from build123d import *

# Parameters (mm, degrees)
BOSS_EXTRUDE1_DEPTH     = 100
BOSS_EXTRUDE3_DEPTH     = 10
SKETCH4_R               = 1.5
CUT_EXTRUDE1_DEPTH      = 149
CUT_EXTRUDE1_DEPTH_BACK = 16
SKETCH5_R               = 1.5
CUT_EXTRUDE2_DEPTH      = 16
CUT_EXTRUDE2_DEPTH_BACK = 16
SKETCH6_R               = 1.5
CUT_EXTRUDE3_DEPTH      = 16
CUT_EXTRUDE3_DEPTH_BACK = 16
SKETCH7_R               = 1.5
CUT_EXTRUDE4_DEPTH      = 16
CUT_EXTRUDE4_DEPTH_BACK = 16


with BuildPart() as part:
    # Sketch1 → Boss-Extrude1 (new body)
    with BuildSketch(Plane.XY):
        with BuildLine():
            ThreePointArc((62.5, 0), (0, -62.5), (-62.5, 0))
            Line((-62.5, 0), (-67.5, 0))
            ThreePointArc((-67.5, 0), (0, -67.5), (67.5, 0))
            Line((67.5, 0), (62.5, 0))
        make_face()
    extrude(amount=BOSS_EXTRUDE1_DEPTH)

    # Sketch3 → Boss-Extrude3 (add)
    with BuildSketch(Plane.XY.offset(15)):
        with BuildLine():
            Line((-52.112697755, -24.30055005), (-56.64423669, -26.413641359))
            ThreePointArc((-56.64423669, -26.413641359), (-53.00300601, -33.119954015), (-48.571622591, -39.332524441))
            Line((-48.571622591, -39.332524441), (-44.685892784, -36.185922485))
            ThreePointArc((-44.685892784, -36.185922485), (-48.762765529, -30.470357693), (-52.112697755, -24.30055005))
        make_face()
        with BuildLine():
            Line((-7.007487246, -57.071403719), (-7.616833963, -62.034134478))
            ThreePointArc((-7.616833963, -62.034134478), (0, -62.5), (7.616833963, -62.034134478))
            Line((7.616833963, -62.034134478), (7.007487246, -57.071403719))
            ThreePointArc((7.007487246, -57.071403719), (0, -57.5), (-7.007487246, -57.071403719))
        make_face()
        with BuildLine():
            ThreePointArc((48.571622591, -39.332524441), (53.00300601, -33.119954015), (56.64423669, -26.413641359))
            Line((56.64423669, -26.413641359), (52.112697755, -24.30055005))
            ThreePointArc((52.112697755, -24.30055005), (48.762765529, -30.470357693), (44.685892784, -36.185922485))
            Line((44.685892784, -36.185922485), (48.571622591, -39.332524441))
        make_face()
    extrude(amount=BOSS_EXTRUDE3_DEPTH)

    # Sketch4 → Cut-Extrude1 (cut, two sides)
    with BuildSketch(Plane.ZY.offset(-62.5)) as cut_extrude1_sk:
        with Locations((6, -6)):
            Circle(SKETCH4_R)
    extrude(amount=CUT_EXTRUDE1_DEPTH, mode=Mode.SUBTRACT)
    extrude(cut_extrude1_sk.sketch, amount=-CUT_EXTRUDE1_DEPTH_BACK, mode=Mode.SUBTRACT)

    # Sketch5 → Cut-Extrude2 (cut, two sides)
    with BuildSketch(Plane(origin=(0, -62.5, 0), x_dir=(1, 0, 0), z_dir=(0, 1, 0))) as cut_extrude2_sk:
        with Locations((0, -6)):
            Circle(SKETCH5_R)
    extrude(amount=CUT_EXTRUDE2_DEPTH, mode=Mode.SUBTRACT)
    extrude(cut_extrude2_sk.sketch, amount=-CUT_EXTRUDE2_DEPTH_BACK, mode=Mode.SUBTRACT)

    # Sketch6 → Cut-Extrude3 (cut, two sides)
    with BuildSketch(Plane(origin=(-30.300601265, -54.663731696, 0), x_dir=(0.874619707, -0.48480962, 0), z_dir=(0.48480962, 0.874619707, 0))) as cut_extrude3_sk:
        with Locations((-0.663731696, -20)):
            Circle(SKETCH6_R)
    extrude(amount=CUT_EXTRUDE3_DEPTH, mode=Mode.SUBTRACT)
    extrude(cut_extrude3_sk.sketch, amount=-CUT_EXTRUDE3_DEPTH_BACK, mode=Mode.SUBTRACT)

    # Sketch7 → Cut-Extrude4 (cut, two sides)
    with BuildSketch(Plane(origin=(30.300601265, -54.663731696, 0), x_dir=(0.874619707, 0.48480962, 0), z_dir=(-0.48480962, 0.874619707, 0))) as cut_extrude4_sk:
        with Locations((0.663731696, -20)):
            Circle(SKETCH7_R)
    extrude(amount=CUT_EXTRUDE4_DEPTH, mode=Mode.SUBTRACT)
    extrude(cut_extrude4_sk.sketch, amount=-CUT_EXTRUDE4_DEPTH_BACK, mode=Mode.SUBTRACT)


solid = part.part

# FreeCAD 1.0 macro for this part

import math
import FreeCAD as App
import Part
import Sketcher
from FreeCAD import Vector
Q = App.Units.Quantity

doc = App.newDocument("Part")
body = doc.addObject("PartDesign::Body", "Body")

sketch1 = doc.addObject("Sketcher::SketchObject", "Sketch")
body.addObject(sketch1)
sketch1.AttachmentSupport = (doc.XY_Plane, [""])
sketch1.MapMode = "FlatFace"
sketch1.addGeometry(Part.ArcOfCircle(Part.Circle(Vector(0, 0, 0), Vector(0, 0, 1), 62.5), math.radians(180), math.radians(360)), False)
sketch1.addGeometry(Part.LineSegment(Vector(-62.5, 0, 0), Vector(-67.5, 0, 0)), False)
sketch1.addGeometry(Part.ArcOfCircle(Part.Circle(Vector(0, 0, 0), Vector(0, 0, 1), 67.5), math.radians(180), math.radians(360)), False)
sketch1.addGeometry(Part.LineSegment(Vector(67.5, 0, 0), Vector(62.5, 0, 0)), False)
sketch1.addConstraint(Sketcher.Constraint("Coincident", 0, 1, 1, 1))
sketch1.addConstraint(Sketcher.Constraint("Coincident", 1, 2, 2, 1))
sketch1.addConstraint(Sketcher.Constraint("Coincident", 2, 2, 3, 1))
sketch1.addConstraint(Sketcher.Constraint("Coincident", 3, 2, 0, 2))
sketch1.addConstraint(Sketcher.Constraint("Horizontal", 1))
sketch1.addConstraint(Sketcher.Constraint("Horizontal", 3))
sketch1.addConstraint(Sketcher.Constraint("Coincident", 0, 3, -1, 1))
sketch1.addConstraint(Sketcher.Constraint("Coincident", 2, 3, -1, 1))
sketch1.addConstraint(Sketcher.Constraint("PointOnObject", 0, 1, -1))
sketch1.addConstraint(Sketcher.Constraint("PointOnObject", 2, 2, -1))
sketch1.addConstraint(Sketcher.Constraint("Radius", 0, Q("62.5 mm")))
sketch1.addConstraint(Sketcher.Constraint("Radius", 2, Q("67.5 mm")))
pad1 = doc.addObject("PartDesign::Pad", "Pad")
body.addObject(pad1)
pad1.Profile = sketch1
pad1.Length = 100

sketch2 = doc.addObject("Sketcher::SketchObject", "Sketch001")
body.addObject(sketch2)
sketch2.AttachmentSupport = (doc.XY_Plane, [""])
sketch2.MapMode = "FlatFace"
sketch2.AttachmentOffset = App.Placement(Vector(0, 0, 15), App.Rotation())
sketch2.addGeometry(Part.LineSegment(Vector(-52.112698, -24.30055, 0), Vector(-56.644237, -26.413641, 0)), False)
sketch2.addGeometry(Part.ArcOfCircle(Part.Circle(Vector(0, 0, 0), Vector(0, 0, 1), 62.5), math.radians(-155), math.radians(-141)), False)
sketch2.addGeometry(Part.LineSegment(Vector(-48.571623, -39.332524, 0), Vector(-44.685893, -36.185922, 0)), False)
sketch2.addGeometry(Part.ArcOfCircle(Part.Circle(Vector(0, 0, 0), Vector(0, 0, 1), 57.5), math.radians(-155), math.radians(-141)), False)
sketch2.addGeometry(Part.LineSegment(Vector(-7.007487, -57.071404, 0), Vector(-7.616834, -62.034134, 0)), False)
sketch2.addGeometry(Part.ArcOfCircle(Part.Circle(Vector(0, 0, 0), Vector(0, 0, 1), 62.5), math.radians(-97), math.radians(-83)), False)
sketch2.addGeometry(Part.LineSegment(Vector(7.616834, -62.034134, 0), Vector(7.007487, -57.071404, 0)), False)
sketch2.addGeometry(Part.ArcOfCircle(Part.Circle(Vector(0, 0, 0), Vector(0, 0, 1), 57.5), math.radians(-97), math.radians(-83)), False)
sketch2.addGeometry(Part.ArcOfCircle(Part.Circle(Vector(0, 0, 0), Vector(0, 0, 1), 62.5), math.radians(-39), math.radians(-25)), False)
sketch2.addGeometry(Part.LineSegment(Vector(56.644237, -26.413641, 0), Vector(52.112698, -24.30055, 0)), False)
sketch2.addGeometry(Part.ArcOfCircle(Part.Circle(Vector(0, 0, 0), Vector(0, 0, 1), 57.5), math.radians(-39), math.radians(-25)), False)
sketch2.addGeometry(Part.LineSegment(Vector(44.685893, -36.185922, 0), Vector(48.571623, -39.332524, 0)), False)
sketch2.addConstraint(Sketcher.Constraint("Coincident", 0, 2, 1, 1))
sketch2.addConstraint(Sketcher.Constraint("Coincident", 1, 2, 2, 1))
sketch2.addConstraint(Sketcher.Constraint("Coincident", 2, 2, 3, 2))
sketch2.addConstraint(Sketcher.Constraint("Coincident", 3, 1, 0, 1))
sketch2.addConstraint(Sketcher.Constraint("Coincident", 4, 2, 5, 1))
sketch2.addConstraint(Sketcher.Constraint("Coincident", 5, 2, 6, 1))
sketch2.addConstraint(Sketcher.Constraint("Coincident", 6, 2, 7, 2))
sketch2.addConstraint(Sketcher.Constraint("Coincident", 7, 1, 4, 1))
sketch2.addConstraint(Sketcher.Constraint("Coincident", 8, 2, 9, 1))
sketch2.addConstraint(Sketcher.Constraint("Coincident", 9, 2, 10, 2))
sketch2.addConstraint(Sketcher.Constraint("Coincident", 10, 1, 11, 1))
sketch2.addConstraint(Sketcher.Constraint("Coincident", 11, 2, 8, 1))
sketch2.addConstraint(Sketcher.Constraint("Coincident", 1, 3, -1, 1))
sketch2.addConstraint(Sketcher.Constraint("Coincident", 3, 3, -1, 1))
sketch2.addConstraint(Sketcher.Constraint("Coincident", 5, 3, -1, 1))
sketch2.addConstraint(Sketcher.Constraint("Coincident", 7, 3, -1, 1))
sketch2.addConstraint(Sketcher.Constraint("Coincident", 8, 3, -1, 1))
sketch2.addConstraint(Sketcher.Constraint("Coincident", 10, 3, -1, 1))
sketch2.addConstraint(Sketcher.Constraint("Equal", 1, 5))
sketch2.addConstraint(Sketcher.Constraint("Equal", 3, 7))
sketch2.addConstraint(Sketcher.Constraint("Equal", 5, 8))
sketch2.addConstraint(Sketcher.Constraint("Equal", 7, 10))
sketch2.addConstraint(Sketcher.Constraint("Horizontal", 4, 2, 5, 2))
sketch2.addConstraint(Sketcher.Constraint("Horizontal", 6, 2, 7, 1))
sketch2.addConstraint(Sketcher.Constraint("Horizontal", 0, 2, 8, 2))
sketch2.addConstraint(Sketcher.Constraint("Horizontal", 3, 1, 9, 2))
sketch2.addConstraint(Sketcher.Constraint("Horizontal", 2, 2, 10, 1))
sketch2.addConstraint(Sketcher.Constraint("Horizontal", 1, 2, 11, 2))
sketch2.addConstraint(Sketcher.Constraint("Radius", 1, Q("62.5 mm")))
sketch2.addConstraint(Sketcher.Constraint("Radius", 3, Q("57.5 mm")))
sketch2.addConstraint(Sketcher.Constraint("Angle", 0, Q("-155 deg")))
sketch2.addConstraint(Sketcher.Constraint("Angle", 2, Q("39 deg")))
sketch2.addConstraint(Sketcher.Constraint("Angle", 4, Q("-97 deg")))
sketch2.addConstraint(Sketcher.Constraint("DistanceY", 0, 2, -1, 1, Q("26.413641 mm")))
sketch2.addConstraint(Sketcher.Constraint("DistanceY", 2, 2, 0, 2, Q("9.772281 mm")))
sketch2.addConstraint(Sketcher.Constraint("DistanceX", 2, 2, 4, 2, Q("37.069059 mm")))
pad2 = doc.addObject("PartDesign::Pad", "Pad001")
body.addObject(pad2)
pad2.Profile = sketch2
pad2.Length = 10

sketch3 = doc.addObject("Sketcher::SketchObject", "Sketch002")
body.addObject(sketch3)
sketch3.AttachmentSupport = (doc.YZ_Plane, [""])
sketch3.MapMode = "FlatFace"
sketch3.AttachmentOffset = App.Placement(Vector(0, 0, 62.5), App.Rotation())
sketch3.addGeometry(Part.Circle(Vector(-6, 6, 0), Vector(0, 0, 1), 1.5), False)
sketch3.addConstraint(Sketcher.Constraint("Diameter", 0, Q("3 mm")))
sketch3.addConstraint(Sketcher.Constraint("DistanceX", 0, 3, -1, 1, Q("6 mm")))
sketch3.addConstraint(Sketcher.Constraint("DistanceY", -1, 1, 0, 3, Q("6 mm")))
pocket1 = doc.addObject("PartDesign::Pocket", "Pocket")
body.addObject(pocket1)
pocket1.Profile = sketch3
pocket1.Type = "ThroughAll"
pocket1.Midplane = True

sketch4 = doc.addObject("Sketcher::SketchObject", "Sketch003")
body.addObject(sketch4)
sketch4.AttachmentSupport = (doc.XZ_Plane, [""])
sketch4.MapMode = "FlatFace"
sketch4.AttachmentOffset = App.Placement(Vector(0, 0, 62.5), App.Rotation())
sketch4.addGeometry(Part.Circle(Vector(0, 6, 0), Vector(0, 0, 1), 1.5), False)
sketch4.addConstraint(Sketcher.Constraint("PointOnObject", 0, 3, -2))
sketch4.addConstraint(Sketcher.Constraint("Diameter", 0, Q("3 mm")))
sketch4.addConstraint(Sketcher.Constraint("DistanceY", -1, 1, 0, 3, Q("6 mm")))
pocket2 = doc.addObject("PartDesign::Pocket", "Pocket001")
body.addObject(pocket2)
pocket2.Profile = sketch4
pocket2.Type = "ThroughAll"
pocket2.Midplane = True

sketch5 = doc.addObject("Sketcher::SketchObject", "Sketch004")
body.addObject(sketch5)
sketch5.Placement = App.Placement(Vector(-30.300601, -54.663732, 0), App.Rotation(Vector(0.874619707, -0.48480962, 0), Vector(0, 0, -1), Vector(0.48480962, 0.874619707, 0), "ZXY"))
sketch5.addGeometry(Part.Circle(Vector(-0.663732, -20, 0), Vector(0, 0, 1), 1.5), False)
sketch5.addConstraint(Sketcher.Constraint("Diameter", 0, Q("3 mm")))
sketch5.addConstraint(Sketcher.Constraint("DistanceY", 0, 3, -1, 1, Q("20 mm")))
sketch5.addConstraint(Sketcher.Constraint("DistanceX", 0, 3, -1, 1, Q("0.663732 mm")))
pocket3 = doc.addObject("PartDesign::Pocket", "Pocket002")
body.addObject(pocket3)
pocket3.Profile = sketch5
pocket3.Type = "ThroughAll"
pocket3.Midplane = True

sketch6 = doc.addObject("Sketcher::SketchObject", "Sketch005")
body.addObject(sketch6)
sketch6.Placement = App.Placement(Vector(30.300601, -54.663732, 0), App.Rotation(Vector(0.874619707, 0.48480962, 0), Vector(0, 0, -1), Vector(-0.48480962, 0.874619707, 0), "ZXY"))
sketch6.addGeometry(Part.Circle(Vector(0.663732, -20, 0), Vector(0, 0, 1), 1.5), False)
sketch6.addConstraint(Sketcher.Constraint("Diameter", 0, Q("3 mm")))
sketch6.addConstraint(Sketcher.Constraint("DistanceY", 0, 3, -1, 1, Q("20 mm")))
sketch6.addConstraint(Sketcher.Constraint("DistanceX", -1, 1, 0, 3, Q("0.663732 mm")))
pocket4 = doc.addObject("PartDesign::Pocket", "Pocket003")
body.addObject(pocket4)
pocket4.Profile = sketch6
pocket4.Type = "ThroughAll"
pocket4.Midplane = True

doc.recompute()
